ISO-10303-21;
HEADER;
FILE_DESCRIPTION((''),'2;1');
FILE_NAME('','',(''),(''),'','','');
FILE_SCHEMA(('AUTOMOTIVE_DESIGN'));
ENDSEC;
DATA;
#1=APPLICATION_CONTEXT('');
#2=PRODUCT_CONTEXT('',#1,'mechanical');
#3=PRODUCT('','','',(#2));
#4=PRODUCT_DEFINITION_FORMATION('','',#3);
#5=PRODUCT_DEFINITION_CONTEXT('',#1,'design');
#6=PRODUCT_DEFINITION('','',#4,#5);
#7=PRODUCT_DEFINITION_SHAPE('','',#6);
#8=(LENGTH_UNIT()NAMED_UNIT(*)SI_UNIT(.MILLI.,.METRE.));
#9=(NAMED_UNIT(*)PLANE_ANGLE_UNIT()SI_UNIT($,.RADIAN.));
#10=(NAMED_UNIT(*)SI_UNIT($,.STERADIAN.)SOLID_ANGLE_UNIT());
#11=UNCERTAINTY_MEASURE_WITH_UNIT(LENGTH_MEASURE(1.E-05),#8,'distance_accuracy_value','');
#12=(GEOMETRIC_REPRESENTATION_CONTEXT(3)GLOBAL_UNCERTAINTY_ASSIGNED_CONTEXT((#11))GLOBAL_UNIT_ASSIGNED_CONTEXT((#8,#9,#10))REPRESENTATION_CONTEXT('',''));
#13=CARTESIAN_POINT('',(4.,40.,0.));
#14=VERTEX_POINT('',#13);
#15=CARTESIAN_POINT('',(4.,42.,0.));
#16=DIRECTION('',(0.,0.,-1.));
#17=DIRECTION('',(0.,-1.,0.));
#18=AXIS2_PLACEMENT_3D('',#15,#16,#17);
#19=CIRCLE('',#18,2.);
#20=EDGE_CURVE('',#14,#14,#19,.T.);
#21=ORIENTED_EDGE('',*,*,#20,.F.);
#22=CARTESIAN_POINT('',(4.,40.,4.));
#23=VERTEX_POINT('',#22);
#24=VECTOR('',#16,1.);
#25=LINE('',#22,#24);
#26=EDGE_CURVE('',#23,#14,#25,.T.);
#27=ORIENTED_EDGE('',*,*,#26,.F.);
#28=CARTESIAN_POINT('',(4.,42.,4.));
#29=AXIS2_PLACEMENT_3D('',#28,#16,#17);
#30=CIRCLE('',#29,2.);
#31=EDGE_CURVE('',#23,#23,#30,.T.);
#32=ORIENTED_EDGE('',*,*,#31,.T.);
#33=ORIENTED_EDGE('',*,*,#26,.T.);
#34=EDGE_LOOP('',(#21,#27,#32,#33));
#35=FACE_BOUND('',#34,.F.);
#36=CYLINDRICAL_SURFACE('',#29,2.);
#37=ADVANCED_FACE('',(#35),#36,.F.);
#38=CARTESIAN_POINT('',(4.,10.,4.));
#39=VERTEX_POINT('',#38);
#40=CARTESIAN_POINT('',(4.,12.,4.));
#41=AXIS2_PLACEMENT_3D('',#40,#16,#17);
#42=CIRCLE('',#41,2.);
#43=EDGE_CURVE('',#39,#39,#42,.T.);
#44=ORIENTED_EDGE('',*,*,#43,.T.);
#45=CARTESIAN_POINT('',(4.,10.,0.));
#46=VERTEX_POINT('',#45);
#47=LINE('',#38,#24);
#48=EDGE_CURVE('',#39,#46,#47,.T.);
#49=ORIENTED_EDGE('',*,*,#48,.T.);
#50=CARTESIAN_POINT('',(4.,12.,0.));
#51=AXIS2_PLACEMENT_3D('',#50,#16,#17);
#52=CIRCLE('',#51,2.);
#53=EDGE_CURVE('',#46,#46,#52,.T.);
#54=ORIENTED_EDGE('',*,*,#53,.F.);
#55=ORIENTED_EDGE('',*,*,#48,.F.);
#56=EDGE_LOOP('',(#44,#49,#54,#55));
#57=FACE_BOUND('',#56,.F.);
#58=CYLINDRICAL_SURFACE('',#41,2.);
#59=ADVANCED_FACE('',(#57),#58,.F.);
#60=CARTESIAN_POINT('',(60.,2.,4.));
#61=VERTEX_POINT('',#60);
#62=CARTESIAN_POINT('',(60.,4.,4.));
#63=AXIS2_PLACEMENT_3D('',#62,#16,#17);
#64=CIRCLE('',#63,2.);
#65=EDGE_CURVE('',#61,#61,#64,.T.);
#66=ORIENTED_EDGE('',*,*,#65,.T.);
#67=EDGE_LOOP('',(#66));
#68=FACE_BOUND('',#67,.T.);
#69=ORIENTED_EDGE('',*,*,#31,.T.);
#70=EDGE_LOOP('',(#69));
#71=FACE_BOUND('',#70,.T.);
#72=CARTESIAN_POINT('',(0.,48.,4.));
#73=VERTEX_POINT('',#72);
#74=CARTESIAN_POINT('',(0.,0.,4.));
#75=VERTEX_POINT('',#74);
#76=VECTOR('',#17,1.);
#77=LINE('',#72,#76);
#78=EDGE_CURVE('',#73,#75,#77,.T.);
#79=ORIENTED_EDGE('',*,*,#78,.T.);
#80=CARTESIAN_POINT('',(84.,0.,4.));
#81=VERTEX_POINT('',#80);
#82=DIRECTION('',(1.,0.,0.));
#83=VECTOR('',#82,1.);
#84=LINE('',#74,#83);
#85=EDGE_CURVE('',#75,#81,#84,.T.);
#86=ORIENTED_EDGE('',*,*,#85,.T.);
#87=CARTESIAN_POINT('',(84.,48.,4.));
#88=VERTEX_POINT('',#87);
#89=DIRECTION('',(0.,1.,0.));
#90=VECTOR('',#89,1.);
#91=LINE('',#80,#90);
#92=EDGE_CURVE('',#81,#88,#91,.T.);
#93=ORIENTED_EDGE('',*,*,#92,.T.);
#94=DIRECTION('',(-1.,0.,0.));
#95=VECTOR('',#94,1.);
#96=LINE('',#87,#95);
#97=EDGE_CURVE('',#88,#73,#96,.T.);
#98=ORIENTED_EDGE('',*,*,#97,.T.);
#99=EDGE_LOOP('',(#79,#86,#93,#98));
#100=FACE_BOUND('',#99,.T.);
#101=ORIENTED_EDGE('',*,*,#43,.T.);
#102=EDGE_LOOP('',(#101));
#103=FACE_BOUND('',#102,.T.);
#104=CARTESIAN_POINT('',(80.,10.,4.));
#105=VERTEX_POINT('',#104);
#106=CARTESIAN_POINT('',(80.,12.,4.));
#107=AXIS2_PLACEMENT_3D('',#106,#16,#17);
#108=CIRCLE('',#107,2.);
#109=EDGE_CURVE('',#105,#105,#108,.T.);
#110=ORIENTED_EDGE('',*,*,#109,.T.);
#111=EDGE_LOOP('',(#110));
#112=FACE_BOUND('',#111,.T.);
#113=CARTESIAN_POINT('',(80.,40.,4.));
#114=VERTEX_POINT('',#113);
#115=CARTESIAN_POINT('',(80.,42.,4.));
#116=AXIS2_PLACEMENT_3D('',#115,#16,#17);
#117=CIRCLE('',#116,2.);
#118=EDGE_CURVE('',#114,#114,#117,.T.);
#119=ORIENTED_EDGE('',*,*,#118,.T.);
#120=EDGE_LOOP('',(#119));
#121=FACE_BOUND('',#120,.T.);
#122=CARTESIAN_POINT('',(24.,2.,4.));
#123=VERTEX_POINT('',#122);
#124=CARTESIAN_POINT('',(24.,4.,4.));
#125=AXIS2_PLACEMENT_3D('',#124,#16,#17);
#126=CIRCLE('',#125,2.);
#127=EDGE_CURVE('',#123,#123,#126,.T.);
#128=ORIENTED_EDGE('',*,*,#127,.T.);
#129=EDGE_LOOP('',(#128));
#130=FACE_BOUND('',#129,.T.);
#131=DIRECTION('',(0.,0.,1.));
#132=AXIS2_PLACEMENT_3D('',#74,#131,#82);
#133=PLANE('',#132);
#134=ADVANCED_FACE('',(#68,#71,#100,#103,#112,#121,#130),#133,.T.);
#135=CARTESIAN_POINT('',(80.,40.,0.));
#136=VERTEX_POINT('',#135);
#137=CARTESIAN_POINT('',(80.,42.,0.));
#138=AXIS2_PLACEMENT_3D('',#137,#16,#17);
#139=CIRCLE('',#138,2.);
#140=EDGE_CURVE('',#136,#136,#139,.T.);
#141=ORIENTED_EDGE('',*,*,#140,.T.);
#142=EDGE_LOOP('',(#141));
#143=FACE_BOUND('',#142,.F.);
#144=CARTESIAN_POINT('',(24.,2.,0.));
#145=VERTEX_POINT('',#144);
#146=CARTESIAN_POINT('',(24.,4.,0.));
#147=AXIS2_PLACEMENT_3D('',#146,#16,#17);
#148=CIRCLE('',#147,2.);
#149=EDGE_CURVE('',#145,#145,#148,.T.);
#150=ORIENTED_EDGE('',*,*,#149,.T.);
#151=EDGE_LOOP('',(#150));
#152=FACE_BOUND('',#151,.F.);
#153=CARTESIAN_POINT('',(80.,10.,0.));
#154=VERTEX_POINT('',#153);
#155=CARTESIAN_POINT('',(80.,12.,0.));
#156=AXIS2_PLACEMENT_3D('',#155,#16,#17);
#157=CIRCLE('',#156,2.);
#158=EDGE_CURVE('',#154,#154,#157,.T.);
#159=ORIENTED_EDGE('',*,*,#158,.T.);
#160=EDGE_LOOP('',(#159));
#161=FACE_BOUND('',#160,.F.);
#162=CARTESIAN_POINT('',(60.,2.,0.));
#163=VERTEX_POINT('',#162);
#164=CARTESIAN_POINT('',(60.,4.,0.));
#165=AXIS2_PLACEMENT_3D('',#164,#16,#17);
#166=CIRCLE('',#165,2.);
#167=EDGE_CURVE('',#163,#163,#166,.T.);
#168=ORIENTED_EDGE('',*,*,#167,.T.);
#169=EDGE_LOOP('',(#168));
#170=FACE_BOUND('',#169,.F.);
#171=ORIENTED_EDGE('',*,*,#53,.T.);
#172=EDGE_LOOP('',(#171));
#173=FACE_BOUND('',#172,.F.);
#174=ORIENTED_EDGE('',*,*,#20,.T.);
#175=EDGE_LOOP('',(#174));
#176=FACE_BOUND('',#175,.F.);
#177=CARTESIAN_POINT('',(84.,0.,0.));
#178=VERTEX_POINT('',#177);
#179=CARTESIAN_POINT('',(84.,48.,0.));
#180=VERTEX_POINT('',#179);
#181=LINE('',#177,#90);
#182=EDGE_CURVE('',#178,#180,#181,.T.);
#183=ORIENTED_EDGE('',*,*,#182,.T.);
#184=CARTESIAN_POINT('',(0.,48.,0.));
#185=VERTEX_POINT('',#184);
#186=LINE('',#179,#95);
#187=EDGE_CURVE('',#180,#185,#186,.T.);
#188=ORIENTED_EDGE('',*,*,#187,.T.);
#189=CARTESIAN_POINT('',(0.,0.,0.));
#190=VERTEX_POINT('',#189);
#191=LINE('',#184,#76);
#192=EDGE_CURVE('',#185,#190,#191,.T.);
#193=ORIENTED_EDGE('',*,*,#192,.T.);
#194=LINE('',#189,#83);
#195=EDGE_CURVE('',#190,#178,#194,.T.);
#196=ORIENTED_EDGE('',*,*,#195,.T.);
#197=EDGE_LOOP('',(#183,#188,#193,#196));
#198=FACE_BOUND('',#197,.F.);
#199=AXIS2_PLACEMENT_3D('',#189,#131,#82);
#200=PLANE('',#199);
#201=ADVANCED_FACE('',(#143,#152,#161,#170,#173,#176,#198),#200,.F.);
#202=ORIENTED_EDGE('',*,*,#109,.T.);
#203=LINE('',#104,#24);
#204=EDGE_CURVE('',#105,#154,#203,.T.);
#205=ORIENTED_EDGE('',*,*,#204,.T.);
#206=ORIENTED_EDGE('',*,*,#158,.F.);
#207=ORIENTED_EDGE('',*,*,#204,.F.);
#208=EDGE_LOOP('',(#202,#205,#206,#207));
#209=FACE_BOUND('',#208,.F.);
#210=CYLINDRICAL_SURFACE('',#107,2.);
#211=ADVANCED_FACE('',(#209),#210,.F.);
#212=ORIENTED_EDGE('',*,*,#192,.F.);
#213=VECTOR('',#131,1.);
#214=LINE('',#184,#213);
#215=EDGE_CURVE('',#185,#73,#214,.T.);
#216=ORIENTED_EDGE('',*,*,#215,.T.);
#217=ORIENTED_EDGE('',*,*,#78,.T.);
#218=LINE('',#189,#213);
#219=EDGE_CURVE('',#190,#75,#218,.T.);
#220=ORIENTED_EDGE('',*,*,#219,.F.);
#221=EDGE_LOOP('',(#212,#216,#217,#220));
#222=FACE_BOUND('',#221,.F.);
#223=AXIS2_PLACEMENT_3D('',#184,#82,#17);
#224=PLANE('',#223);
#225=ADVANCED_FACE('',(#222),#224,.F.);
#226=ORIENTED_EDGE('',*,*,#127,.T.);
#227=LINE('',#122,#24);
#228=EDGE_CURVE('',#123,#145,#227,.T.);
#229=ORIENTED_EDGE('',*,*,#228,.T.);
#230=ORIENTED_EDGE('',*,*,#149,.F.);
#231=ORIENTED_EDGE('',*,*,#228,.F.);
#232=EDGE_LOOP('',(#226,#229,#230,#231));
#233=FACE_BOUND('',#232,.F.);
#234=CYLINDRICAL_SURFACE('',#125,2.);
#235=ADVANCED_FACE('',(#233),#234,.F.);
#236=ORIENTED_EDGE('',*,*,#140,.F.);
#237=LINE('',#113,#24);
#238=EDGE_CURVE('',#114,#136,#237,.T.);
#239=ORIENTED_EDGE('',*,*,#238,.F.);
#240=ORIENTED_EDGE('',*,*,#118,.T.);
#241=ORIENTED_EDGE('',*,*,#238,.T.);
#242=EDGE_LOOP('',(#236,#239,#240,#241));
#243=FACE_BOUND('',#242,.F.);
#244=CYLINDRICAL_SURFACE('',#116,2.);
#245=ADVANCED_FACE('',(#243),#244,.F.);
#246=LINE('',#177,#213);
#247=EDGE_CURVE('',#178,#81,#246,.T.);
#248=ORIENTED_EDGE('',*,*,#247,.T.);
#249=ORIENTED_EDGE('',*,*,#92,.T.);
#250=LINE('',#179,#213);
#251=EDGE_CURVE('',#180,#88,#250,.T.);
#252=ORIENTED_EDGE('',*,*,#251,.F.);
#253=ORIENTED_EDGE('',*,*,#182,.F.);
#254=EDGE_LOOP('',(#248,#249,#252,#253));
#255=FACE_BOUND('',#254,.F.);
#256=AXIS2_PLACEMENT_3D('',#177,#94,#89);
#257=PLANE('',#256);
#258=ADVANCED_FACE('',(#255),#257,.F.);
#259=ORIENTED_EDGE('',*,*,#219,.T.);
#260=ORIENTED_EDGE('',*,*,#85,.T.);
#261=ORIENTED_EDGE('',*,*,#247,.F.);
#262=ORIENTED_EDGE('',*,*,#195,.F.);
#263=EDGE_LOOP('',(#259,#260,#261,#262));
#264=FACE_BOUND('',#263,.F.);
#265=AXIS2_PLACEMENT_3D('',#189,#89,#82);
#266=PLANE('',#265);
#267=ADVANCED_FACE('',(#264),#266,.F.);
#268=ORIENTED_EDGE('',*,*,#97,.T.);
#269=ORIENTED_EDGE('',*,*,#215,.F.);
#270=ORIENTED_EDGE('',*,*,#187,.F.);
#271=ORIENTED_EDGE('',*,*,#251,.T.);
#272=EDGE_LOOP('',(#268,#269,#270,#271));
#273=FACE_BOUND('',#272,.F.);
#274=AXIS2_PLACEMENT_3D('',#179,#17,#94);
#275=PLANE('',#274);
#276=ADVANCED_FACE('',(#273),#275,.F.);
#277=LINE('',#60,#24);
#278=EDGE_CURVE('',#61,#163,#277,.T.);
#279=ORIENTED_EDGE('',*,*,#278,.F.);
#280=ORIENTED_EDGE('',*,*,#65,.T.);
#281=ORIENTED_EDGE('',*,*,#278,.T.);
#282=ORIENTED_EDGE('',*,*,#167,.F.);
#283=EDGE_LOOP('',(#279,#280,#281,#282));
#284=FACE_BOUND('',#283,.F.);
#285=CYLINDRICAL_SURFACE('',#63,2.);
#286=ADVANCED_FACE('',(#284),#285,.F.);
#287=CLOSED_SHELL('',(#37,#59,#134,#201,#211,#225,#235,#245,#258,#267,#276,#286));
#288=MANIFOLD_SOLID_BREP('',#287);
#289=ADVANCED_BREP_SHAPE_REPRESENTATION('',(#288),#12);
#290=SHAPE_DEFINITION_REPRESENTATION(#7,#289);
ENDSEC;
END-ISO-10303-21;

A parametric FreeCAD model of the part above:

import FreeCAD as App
import Part
import Sketcher

V = App.Vector
Q = App.Units.Quantity

doc = App.newDocument("Part")
body = doc.addObject("PartDesign::Body", "Body")

sketch1 = body.newObject("Sketcher::SketchObject", "Sketch")
sketch1.AttachmentSupport = (doc.getObject("XY_Plane"), [""])
sketch1.MapMode = "FlatFace"
sketch1.addGeometry(Part.LineSegment(V(0, 48, 0), V(0, 0, 0)), False)
sketch1.addGeometry(Part.LineSegment(V(0, 0, 0), V(84, 0, 0)), False)
sketch1.addGeometry(Part.LineSegment(V(84, 0, 0), V(84, 48, 0)), False)
sketch1.addGeometry(Part.LineSegment(V(84, 48, 0), V(0, 48, 0)), False)
sketch1.addConstraint(Sketcher.Constraint("Coincident", 0, 2, 1, 1))
sketch1.addConstraint(Sketcher.Constraint("Coincident", 1, 2, 2, 1))
sketch1.addConstraint(Sketcher.Constraint("Coincident", 2, 2, 3, 1))
sketch1.addConstraint(Sketcher.Constraint("Coincident", 3, 2, 0, 1))
sketch1.addConstraint(Sketcher.Constraint("Vertical", 0))
sketch1.addConstraint(Sketcher.Constraint("Horizontal", 1))
sketch1.addConstraint(Sketcher.Constraint("Vertical", 2))
sketch1.addConstraint(Sketcher.Constraint("Horizontal", 3))
sketch1.addConstraint(Sketcher.Constraint("Coincident", 0, 2, -1, 1))
sketch1.addConstraint(Sketcher.Constraint("DistanceX", 1, 1, 1, 2, Q("84 mm")))
sketch1.addConstraint(Sketcher.Constraint("DistanceY", 0, 2, 0, 1, Q("48 mm")))
pad1 = body.newObject("PartDesign::Pad", "Pad")
pad1.Profile = sketch1
pad1.Length = 4

sketch2 = body.newObject("Sketcher::SketchObject", "Sketch001")
sketch2.AttachmentSupport = (doc.getObject("XY_Plane"), [""])
sketch2.MapMode = "FlatFace"
sketch2.AttachmentOffset = App.Placement(V(0, 0, 4), App.Rotation())
sketch2.addGeometry(Part.Circle(V(4, 12, 0), V(0, 0, 1), 2), False)
sketch2.addGeometry(Part.Circle(V(4, 42, 0), V(0, 0, 1), 2), False)
sketch2.addGeometry(Part.Circle(V(80, 42, 0), V(0, 0, 1), 2), False)
sketch2.addGeometry(Part.Circle(V(80, 12, 0), V(0, 0, 1), 2), False)
sketch2.addConstraint(Sketcher.Constraint("Equal", 0, 1))
sketch2.addConstraint(Sketcher.Constraint("Equal", 1, 2))
sketch2.addConstraint(Sketcher.Constraint("Equal", 2, 3))
sketch2.addConstraint(Sketcher.Constraint("Horizontal", 1, 3, 2, 3))
sketch2.addConstraint(Sketcher.Constraint("Horizontal", 0, 3, 3, 3))
sketch2.addConstraint(Sketcher.Constraint("Vertical", 0, 3, 1, 3))
sketch2.addConstraint(Sketcher.Constraint("Vertical", 2, 3, 3, 3))
sketch2.addConstraint(Sketcher.Constraint("Diameter", 0, Q("4 mm")))
sketch2.addConstraint(Sketcher.Constraint("DistanceX", -1, 1, 0, 3, Q("4 mm")))
sketch2.addConstraint(Sketcher.Constraint("DistanceY", -1, 1, 0, 3, Q("12 mm")))
sketch2.addConstraint(Sketcher.Constraint("DistanceY", -1, 1, 1, 3, Q("42 mm")))
sketch2.addConstraint(Sketcher.Constraint("DistanceX", -1, 1, 2, 3, Q("80 mm")))
doc.recompute()
hole = body.newObject("PartDesign::Hole", "Hole")
hole.Profile = sketch2
hole.ThreadType = "None"
hole.Diameter = 4
hole.DepthType = "Dimension"
hole.Depth = 4
hole.DrillPoint = "Flat"

sketch3 = body.newObject("Sketcher::SketchObject", "Sketch002")
sketch3.AttachmentSupport = (doc.getObject("XY_Plane"), [""])
sketch3.MapMode = "FlatFace"
sketch3.AttachmentOffset = App.Placement(V(0, 0, 4), App.Rotation())
sketch3.addGeometry(Part.Circle(V(24, 4, 0), V(0, 0, 1), 2), False)
sketch3.addGeometry(Part.Circle(V(60, 4, 0), V(0, 0, 1), 2), False)
sketch3.addConstraint(Sketcher.Constraint("Equal", 0, 1))
sketch3.addConstraint(Sketcher.Constraint("Horizontal", 0, 3, 1, 3))
sketch3.addConstraint(Sketcher.Constraint("Diameter", 0, Q("4 mm")))
sketch3.addConstraint(Sketcher.Constraint("DistanceX", -1, 1, 0, 3, Q("24 mm")))
sketch3.addConstraint(Sketcher.Constraint("DistanceY", -1, 1, 0, 3, Q("4 mm")))
sketch3.addConstraint(Sketcher.Constraint("DistanceX", -1, 1, 1, 3, Q("60 mm")))
doc.recompute()
hole2 = body.newObject("PartDesign::Hole", "Hole001")
hole2.Profile = sketch3
hole2.ThreadType = "None"
hole2.Diameter = 4
hole2.DepthType = "Dimension"
hole2.Depth = 4
hole2.DrillPoint = "Flat"

doc.recompute()
